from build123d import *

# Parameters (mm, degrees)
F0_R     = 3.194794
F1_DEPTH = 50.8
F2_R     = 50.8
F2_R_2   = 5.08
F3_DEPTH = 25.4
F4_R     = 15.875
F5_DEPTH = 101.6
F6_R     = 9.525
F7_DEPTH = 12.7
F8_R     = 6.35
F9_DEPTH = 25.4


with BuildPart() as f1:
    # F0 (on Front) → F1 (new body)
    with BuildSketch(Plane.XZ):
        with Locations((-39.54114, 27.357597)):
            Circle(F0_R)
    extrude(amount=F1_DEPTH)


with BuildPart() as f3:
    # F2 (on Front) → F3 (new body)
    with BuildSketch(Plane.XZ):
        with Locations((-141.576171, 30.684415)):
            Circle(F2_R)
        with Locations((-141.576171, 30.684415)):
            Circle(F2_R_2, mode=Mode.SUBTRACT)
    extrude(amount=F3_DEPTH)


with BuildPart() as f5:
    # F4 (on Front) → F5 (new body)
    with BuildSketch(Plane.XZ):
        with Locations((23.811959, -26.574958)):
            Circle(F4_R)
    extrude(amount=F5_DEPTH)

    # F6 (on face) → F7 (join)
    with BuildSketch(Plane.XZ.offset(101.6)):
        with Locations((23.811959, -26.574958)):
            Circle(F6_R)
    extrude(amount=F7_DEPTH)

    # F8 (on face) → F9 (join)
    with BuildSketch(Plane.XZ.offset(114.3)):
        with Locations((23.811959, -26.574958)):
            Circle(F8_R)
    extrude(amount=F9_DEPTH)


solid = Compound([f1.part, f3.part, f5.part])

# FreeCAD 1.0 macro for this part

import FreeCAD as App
import Part
import Sketcher

V = App.Vector
Q = App.Units.Quantity

doc = App.newDocument("Part")
params = doc.addObject("Spreadsheet::Sheet", "Params")
for row, (alias, value) in enumerate([
    ("pad1_length", "2 in"),
    ("sketch2_diameter", "4 in"),
    ("sketch2_diameter2", "0.4 in"),
    ("pad2_length", "1 in"),
    ("sketch3_diameter", "1.25 in"),
    ("pad3_length", "4 in"),
    ("sketch4_diameter", "0.75 in"),
    ("pad4_length", "0.5 in"),
    ("sketch5_diameter", "0.5 in"),
    ("pad5_length", "1 in"),
], start=1):
    params.set(f"A{row}", alias)
    params.set(f"B{row}", "=" + value)
    params.setAlias(f"B{row}", alias)

body = doc.addObject("PartDesign::Body", "Body")

sketch1 = doc.addObject("Sketcher::SketchObject", "Sketch")
body.addObject(sketch1)
sketch1.AttachmentSupport = (doc.XZ_Plane, [""])
sketch1.MapMode = "FlatFace"
sketch1.addGeometry(Part.Circle(V(-39.54114, 27.357597, 0), V(0, 0, 1), 3.194794), False)
sketch1.addConstraint([
    Sketcher.Constraint("Diameter", 0, 6.389588),
    Sketcher.Constraint("DistanceX", 0, 3, -1, 1, 39.54114),
    Sketcher.Constraint("DistanceY", -1, 1, 0, 3, 27.357597),
])
pad1 = doc.addObject("PartDesign::Pad", "Pad")
body.addObject(pad1)
pad1.Profile = sketch1
pad1.setExpression("Length", "Params.pad1_length")
body2 = doc.addObject("PartDesign::Body", "Body001")

sketch2 = doc.addObject("Sketcher::SketchObject", "Sketch001")
body2.addObject(sketch2)
sketch2.AttachmentSupport = (doc.getObject("XZ_Plane001"), [""])
sketch2.MapMode = "FlatFace"
sketch2.addGeometry([
    Part.Circle(V(-141.576171, 30.684415, 0), V(0, 0, 1), 50.8),
    Part.Circle(V(-141.576171, 30.684415, 0), V(0, 0, 1), 5.08),
], False)
sketch2.addConstraint([
    Sketcher.Constraint("Coincident", 1, 3, 0, 3),
    Sketcher.Constraint("Diameter", 0, Q("4 in")),
    Sketcher.Constraint("Diameter", 1, Q("0.4 in")),
    Sketcher.Constraint("DistanceX", 0, 3, -1, 1, 141.576171),
    Sketcher.Constraint("DistanceY", -1, 1, 0, 3, 30.684415),
])
sketch2.setExpression("Constraints[1]", "Params.sketch2_diameter")
sketch2.setExpression("Constraints[2]", "Params.sketch2_diameter2")
pad2 = doc.addObject("PartDesign::Pad", "Pad001")
body2.addObject(pad2)
pad2.Profile = sketch2
pad2.setExpression("Length", "Params.pad2_length")
body3 = doc.addObject("PartDesign::Body", "Body002")

sketch3 = doc.addObject("Sketcher::SketchObject", "Sketch002")
body3.addObject(sketch3)
sketch3.AttachmentSupport = (doc.getObject("XZ_Plane002"), [""])
sketch3.MapMode = "FlatFace"
sketch3.addGeometry(Part.Circle(V(23.811959, -26.574958, 0), V(0, 0, 1), 15.875), False)
sketch3.addConstraint([
    Sketcher.Constraint("Diameter", 0, Q("1.25 in")),
    Sketcher.Constraint("DistanceX", -1, 1, 0, 3, 23.811959),
    Sketcher.Constraint("DistanceY", 0, 3, -1, 1, 26.574958),
])
sketch3.setExpression("Constraints[0]", "Params.sketch3_diameter")
pad3 = doc.addObject("PartDesign::Pad", "Pad002")
body3.addObject(pad3)
pad3.Profile = sketch3
pad3.setExpression("Length", "Params.pad3_length")

sketch4 = doc.addObject("Sketcher::SketchObject", "Sketch003")
body3.addObject(sketch4)
sketch4.AttachmentSupport = (doc.getObject("XZ_Plane002"), [""])
sketch4.MapMode = "FlatFace"
sketch4.AttachmentOffset = App.Placement(V(0, 0, 4 * 25.4), App.Rotation())
sketch4.addGeometry(Part.Circle(V(23.811959, -26.574958, 0), V(0, 0, 1), 9.525), False)
sketch4.addConstraint([
    Sketcher.Constraint("Diameter", 0, Q("0.75 in")),
    Sketcher.Constraint("DistanceX", -1, 1, 0, 3, 23.811959),
    Sketcher.Constraint("DistanceY", 0, 3, -1, 1, 26.574958),
])
sketch4.setExpression("Constraints[0]", "Params.sketch4_diameter")
pad4 = doc.addObject("PartDesign::Pad", "Pad003")
body3.addObject(pad4)
pad4.Profile = sketch4
pad4.setExpression("Length", "Params.pad4_length")

sketch5 = doc.addObject("Sketcher::SketchObject", "Sketch004")
body3.addObject(sketch5)
sketch5.AttachmentSupport = (doc.getObject("XZ_Plane002"), [""])
sketch5.MapMode = "FlatFace"
sketch5.AttachmentOffset = App.Placement(V(0, 0, 4.5 * 25.4), App.Rotation())
sketch5.addGeometry(Part.Circle(V(23.811959, -26.574958, 0), V(0, 0, 1), 6.35), False)
sketch5.addConstraint([
    Sketcher.Constraint("Diameter", 0, Q("0.5 in")),
    Sketcher.Constraint("DistanceX", -1, 1, 0, 3, 23.811959),
    Sketcher.Constraint("DistanceY", 0, 3, -1, 1, 26.574958),
])
sketch5.setExpression("Constraints[0]", "Params.sketch5_diameter")
pad5 = doc.addObject("PartDesign::Pad", "Pad004")
body3.addObject(pad5)
pad5.Profile = sketch5
pad5.setExpression("Length", "Params.pad5_length")

doc.recompute()
